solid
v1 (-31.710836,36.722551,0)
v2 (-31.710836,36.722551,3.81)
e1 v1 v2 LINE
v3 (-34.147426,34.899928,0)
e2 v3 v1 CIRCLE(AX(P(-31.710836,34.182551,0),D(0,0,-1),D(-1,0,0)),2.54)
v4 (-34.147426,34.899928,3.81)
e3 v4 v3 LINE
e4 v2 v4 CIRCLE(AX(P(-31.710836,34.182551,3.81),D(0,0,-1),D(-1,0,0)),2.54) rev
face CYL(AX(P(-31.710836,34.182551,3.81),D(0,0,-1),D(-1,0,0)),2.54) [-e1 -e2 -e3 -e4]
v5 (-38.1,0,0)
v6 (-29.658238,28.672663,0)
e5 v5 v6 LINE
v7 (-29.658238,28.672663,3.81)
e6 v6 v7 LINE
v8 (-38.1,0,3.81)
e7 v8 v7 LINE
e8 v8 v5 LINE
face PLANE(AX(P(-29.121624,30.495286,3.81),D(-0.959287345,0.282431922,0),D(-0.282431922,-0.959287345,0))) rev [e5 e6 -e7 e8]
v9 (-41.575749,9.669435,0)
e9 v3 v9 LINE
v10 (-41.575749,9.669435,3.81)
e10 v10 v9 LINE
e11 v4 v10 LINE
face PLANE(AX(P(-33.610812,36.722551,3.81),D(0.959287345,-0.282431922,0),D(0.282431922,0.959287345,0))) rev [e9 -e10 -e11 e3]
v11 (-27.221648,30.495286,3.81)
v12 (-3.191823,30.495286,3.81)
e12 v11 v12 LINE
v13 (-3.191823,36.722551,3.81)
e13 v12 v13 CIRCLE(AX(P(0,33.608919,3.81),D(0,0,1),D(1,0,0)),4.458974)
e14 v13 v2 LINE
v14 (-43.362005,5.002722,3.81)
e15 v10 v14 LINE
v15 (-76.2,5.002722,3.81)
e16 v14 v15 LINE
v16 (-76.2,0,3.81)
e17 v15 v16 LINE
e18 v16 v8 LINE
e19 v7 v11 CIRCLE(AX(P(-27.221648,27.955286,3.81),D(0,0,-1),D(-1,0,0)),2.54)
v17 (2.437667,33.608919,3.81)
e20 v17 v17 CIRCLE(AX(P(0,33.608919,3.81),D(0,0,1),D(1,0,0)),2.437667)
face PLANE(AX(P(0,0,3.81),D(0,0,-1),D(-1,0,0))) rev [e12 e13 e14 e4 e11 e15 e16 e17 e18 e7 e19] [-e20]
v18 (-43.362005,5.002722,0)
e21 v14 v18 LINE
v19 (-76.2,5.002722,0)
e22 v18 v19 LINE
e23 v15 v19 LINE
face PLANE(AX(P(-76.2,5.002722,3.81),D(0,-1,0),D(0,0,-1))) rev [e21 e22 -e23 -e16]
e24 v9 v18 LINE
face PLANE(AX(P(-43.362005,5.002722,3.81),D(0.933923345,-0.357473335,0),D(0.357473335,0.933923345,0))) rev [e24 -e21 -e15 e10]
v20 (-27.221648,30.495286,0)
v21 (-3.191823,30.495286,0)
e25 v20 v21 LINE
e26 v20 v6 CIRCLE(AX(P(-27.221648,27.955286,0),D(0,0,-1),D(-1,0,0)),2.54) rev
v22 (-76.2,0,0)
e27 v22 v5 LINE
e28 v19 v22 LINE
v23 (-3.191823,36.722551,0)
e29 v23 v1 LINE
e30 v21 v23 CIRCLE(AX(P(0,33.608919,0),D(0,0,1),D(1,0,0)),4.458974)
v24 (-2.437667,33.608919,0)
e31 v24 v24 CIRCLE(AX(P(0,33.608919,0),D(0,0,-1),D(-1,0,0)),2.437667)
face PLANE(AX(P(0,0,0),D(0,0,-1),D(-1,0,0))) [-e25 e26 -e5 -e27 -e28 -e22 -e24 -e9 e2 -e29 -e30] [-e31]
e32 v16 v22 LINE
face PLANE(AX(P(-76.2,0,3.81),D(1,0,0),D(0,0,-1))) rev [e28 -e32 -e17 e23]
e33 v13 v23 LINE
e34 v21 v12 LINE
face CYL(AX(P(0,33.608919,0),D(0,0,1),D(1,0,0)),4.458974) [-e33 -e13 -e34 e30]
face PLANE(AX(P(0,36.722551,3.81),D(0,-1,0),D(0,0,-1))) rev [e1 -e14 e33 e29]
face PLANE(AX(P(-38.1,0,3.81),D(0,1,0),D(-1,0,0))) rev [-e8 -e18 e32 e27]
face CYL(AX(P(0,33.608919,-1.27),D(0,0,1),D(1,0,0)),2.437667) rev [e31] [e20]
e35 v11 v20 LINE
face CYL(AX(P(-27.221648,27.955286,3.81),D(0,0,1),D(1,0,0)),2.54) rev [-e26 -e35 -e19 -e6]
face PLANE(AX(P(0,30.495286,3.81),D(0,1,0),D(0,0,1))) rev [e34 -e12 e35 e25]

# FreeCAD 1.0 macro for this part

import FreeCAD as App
import Part
import Sketcher
from FreeCAD import Vector
Q = App.Units.Quantity


def edges_at(feature, points):
    """Names of the edges that pass closest to the given points."""
    edges = feature.Shape.Edges
    near = lambda p: min(range(len(edges)), key=lambda i: edges[i].distToShape(Part.Vertex(*p))[0])
    return sorted({f"Edge{near(p) + 1}" for p in points})


def add_polygon(sketch, points):
    """Adds a closed chain of lines whose ends are joined by coincident constraints."""
    first, n = sketch.GeometryCount, len(points)
    for a, b in zip(points, points[1:] + points[:1]):
        sketch.addGeometry(Part.LineSegment(App.Vector(*a, 0), App.Vector(*b, 0)), False)
    for i in range(n):
        sketch.addConstraint(Sketcher.Constraint("Coincident", first + i, 2, first + (i + 1) % n, 1))

doc = App.newDocument("Part")
body = doc.addObject("PartDesign::Body", "Body")

# Sketch on XY plane
sketch1 = body.newObject("Sketcher::SketchObject", "Sketch")
sketch1.AttachmentSupport = (doc.getObject("XY_Plane"), [""])
sketch1.MapMode = "FlatFace"
add_polygon(sketch1, [(0, 30.5), (0, 36.7), (-33.6, 36.7), (-41.6, 9.7), (-43.4, 5), (-76.2, 5), (-76.2, 0), (-38.1, 0), (-29.1, 30.5)])  # lines 0-8
sketch1.addConstraint([
    Sketcher.Constraint("Vertical", 0),
    Sketcher.Constraint("Horizontal", 1),
    Sketcher.Constraint("Horizontal", 4),
    Sketcher.Constraint("Vertical", 5),
    Sketcher.Constraint("Horizontal", 6),
    Sketcher.Constraint("Horizontal", 8),
    Sketcher.Constraint("PointOnObject", 0, 2, -2),
    Sketcher.Constraint("PointOnObject", 5, 2, -1),
    Sketcher.Constraint("Parallel", 2, 7),
    Sketcher.Constraint("DistanceX", 6, 1, 6, 2, Q("1.5 in")),
    Sketcher.Constraint("DistanceX", 4, 2, -1, 1, Q("3 in")),
    Sketcher.Constraint("Distance", 3, 4.996891),
    Sketcher.Constraint("Distance", 7, 31.789522),
    Sketcher.Constraint("DistanceX", 1, 2, 1, 1, 33.610812),
    Sketcher.Constraint("DistanceX", 4, 2, 4, 1, 32.837995),
    Sketcher.Constraint("DistanceX", 8, 1, 8, 2, 29.121624),
    Sketcher.Constraint("DistanceY", 0, 1, 0, 2, 6.227266),
    Sketcher.Constraint("DistanceY", 5, 2, 5, 1, 5.002722),
])
pad1 = body.newObject("PartDesign::Pad", "Pad")
pad1.Profile = sketch1
pad1.Length = Q("0.15 in")

# Sketch on XY plane
sketch2 = body.newObject("Sketcher::SketchObject", "Sketch001")
sketch2.AttachmentSupport = (doc.getObject("XY_Plane"), [""])
sketch2.MapMode = "FlatFace"
sketch2.AttachmentOffset = App.Placement(Vector(0, 0, 0.15 * 25.4), App.Rotation())
sketch2.addGeometry(Part.Circle(Vector(0, 33.6, 0), Vector(0, 0, 1), 4.5), False)
sketch2.addConstraint([
    Sketcher.Constraint("PointOnObject", 0, 3, -2),
    Sketcher.Constraint("Diameter", 0, 8.917947),
    Sketcher.Constraint("DistanceY", -1, 1, 0, 3, 33.608919),
])
pad2 = body.newObject("PartDesign::Pad", "Pad001")
pad2.Profile = sketch2
pad2.Length = Q("0.15 in")
pad2.Reversed = True

# Sketch on XY plane
sketch3 = body.newObject("Sketcher::SketchObject", "Sketch002")
sketch3.AttachmentSupport = (doc.getObject("XY_Plane"), [""])
sketch3.MapMode = "FlatFace"
sketch3.AttachmentOffset = App.Placement(Vector(0, 0, 0.15 * 25.4), App.Rotation())
sketch3.addGeometry(Part.Circle(Vector(0, 33.6, 0), Vector(0, 0, 1), 2.4), False)
sketch3.addConstraint([
    Sketcher.Constraint("PointOnObject", 0, 3, -2),
    Sketcher.Constraint("Diameter", 0, 4.875334),
    Sketcher.Constraint("DistanceY", -1, 1, 0, 3, 33.608919),
])
pocket1 = body.newObject("PartDesign::Pocket", "Pocket")
pocket1.Profile = sketch3
pocket1.Length = Q("0.2 in")
doc.recompute()

fillet = body.newObject("PartDesign::Fillet", "Fillet")
fillet.Base = (pocket1, edges_at(pocket1, [(-33.611, 36.723, 1.905)]))
fillet.Radius = Q("0.1 in")
doc.recompute()

fillet2 = body.newObject("PartDesign::Fillet", "Fillet001")
fillet2.Base = (fillet, edges_at(fillet, [(-29.122, 30.495, 1.905)]))
fillet2.Radius = Q("0.1 in")

doc.recompute()
